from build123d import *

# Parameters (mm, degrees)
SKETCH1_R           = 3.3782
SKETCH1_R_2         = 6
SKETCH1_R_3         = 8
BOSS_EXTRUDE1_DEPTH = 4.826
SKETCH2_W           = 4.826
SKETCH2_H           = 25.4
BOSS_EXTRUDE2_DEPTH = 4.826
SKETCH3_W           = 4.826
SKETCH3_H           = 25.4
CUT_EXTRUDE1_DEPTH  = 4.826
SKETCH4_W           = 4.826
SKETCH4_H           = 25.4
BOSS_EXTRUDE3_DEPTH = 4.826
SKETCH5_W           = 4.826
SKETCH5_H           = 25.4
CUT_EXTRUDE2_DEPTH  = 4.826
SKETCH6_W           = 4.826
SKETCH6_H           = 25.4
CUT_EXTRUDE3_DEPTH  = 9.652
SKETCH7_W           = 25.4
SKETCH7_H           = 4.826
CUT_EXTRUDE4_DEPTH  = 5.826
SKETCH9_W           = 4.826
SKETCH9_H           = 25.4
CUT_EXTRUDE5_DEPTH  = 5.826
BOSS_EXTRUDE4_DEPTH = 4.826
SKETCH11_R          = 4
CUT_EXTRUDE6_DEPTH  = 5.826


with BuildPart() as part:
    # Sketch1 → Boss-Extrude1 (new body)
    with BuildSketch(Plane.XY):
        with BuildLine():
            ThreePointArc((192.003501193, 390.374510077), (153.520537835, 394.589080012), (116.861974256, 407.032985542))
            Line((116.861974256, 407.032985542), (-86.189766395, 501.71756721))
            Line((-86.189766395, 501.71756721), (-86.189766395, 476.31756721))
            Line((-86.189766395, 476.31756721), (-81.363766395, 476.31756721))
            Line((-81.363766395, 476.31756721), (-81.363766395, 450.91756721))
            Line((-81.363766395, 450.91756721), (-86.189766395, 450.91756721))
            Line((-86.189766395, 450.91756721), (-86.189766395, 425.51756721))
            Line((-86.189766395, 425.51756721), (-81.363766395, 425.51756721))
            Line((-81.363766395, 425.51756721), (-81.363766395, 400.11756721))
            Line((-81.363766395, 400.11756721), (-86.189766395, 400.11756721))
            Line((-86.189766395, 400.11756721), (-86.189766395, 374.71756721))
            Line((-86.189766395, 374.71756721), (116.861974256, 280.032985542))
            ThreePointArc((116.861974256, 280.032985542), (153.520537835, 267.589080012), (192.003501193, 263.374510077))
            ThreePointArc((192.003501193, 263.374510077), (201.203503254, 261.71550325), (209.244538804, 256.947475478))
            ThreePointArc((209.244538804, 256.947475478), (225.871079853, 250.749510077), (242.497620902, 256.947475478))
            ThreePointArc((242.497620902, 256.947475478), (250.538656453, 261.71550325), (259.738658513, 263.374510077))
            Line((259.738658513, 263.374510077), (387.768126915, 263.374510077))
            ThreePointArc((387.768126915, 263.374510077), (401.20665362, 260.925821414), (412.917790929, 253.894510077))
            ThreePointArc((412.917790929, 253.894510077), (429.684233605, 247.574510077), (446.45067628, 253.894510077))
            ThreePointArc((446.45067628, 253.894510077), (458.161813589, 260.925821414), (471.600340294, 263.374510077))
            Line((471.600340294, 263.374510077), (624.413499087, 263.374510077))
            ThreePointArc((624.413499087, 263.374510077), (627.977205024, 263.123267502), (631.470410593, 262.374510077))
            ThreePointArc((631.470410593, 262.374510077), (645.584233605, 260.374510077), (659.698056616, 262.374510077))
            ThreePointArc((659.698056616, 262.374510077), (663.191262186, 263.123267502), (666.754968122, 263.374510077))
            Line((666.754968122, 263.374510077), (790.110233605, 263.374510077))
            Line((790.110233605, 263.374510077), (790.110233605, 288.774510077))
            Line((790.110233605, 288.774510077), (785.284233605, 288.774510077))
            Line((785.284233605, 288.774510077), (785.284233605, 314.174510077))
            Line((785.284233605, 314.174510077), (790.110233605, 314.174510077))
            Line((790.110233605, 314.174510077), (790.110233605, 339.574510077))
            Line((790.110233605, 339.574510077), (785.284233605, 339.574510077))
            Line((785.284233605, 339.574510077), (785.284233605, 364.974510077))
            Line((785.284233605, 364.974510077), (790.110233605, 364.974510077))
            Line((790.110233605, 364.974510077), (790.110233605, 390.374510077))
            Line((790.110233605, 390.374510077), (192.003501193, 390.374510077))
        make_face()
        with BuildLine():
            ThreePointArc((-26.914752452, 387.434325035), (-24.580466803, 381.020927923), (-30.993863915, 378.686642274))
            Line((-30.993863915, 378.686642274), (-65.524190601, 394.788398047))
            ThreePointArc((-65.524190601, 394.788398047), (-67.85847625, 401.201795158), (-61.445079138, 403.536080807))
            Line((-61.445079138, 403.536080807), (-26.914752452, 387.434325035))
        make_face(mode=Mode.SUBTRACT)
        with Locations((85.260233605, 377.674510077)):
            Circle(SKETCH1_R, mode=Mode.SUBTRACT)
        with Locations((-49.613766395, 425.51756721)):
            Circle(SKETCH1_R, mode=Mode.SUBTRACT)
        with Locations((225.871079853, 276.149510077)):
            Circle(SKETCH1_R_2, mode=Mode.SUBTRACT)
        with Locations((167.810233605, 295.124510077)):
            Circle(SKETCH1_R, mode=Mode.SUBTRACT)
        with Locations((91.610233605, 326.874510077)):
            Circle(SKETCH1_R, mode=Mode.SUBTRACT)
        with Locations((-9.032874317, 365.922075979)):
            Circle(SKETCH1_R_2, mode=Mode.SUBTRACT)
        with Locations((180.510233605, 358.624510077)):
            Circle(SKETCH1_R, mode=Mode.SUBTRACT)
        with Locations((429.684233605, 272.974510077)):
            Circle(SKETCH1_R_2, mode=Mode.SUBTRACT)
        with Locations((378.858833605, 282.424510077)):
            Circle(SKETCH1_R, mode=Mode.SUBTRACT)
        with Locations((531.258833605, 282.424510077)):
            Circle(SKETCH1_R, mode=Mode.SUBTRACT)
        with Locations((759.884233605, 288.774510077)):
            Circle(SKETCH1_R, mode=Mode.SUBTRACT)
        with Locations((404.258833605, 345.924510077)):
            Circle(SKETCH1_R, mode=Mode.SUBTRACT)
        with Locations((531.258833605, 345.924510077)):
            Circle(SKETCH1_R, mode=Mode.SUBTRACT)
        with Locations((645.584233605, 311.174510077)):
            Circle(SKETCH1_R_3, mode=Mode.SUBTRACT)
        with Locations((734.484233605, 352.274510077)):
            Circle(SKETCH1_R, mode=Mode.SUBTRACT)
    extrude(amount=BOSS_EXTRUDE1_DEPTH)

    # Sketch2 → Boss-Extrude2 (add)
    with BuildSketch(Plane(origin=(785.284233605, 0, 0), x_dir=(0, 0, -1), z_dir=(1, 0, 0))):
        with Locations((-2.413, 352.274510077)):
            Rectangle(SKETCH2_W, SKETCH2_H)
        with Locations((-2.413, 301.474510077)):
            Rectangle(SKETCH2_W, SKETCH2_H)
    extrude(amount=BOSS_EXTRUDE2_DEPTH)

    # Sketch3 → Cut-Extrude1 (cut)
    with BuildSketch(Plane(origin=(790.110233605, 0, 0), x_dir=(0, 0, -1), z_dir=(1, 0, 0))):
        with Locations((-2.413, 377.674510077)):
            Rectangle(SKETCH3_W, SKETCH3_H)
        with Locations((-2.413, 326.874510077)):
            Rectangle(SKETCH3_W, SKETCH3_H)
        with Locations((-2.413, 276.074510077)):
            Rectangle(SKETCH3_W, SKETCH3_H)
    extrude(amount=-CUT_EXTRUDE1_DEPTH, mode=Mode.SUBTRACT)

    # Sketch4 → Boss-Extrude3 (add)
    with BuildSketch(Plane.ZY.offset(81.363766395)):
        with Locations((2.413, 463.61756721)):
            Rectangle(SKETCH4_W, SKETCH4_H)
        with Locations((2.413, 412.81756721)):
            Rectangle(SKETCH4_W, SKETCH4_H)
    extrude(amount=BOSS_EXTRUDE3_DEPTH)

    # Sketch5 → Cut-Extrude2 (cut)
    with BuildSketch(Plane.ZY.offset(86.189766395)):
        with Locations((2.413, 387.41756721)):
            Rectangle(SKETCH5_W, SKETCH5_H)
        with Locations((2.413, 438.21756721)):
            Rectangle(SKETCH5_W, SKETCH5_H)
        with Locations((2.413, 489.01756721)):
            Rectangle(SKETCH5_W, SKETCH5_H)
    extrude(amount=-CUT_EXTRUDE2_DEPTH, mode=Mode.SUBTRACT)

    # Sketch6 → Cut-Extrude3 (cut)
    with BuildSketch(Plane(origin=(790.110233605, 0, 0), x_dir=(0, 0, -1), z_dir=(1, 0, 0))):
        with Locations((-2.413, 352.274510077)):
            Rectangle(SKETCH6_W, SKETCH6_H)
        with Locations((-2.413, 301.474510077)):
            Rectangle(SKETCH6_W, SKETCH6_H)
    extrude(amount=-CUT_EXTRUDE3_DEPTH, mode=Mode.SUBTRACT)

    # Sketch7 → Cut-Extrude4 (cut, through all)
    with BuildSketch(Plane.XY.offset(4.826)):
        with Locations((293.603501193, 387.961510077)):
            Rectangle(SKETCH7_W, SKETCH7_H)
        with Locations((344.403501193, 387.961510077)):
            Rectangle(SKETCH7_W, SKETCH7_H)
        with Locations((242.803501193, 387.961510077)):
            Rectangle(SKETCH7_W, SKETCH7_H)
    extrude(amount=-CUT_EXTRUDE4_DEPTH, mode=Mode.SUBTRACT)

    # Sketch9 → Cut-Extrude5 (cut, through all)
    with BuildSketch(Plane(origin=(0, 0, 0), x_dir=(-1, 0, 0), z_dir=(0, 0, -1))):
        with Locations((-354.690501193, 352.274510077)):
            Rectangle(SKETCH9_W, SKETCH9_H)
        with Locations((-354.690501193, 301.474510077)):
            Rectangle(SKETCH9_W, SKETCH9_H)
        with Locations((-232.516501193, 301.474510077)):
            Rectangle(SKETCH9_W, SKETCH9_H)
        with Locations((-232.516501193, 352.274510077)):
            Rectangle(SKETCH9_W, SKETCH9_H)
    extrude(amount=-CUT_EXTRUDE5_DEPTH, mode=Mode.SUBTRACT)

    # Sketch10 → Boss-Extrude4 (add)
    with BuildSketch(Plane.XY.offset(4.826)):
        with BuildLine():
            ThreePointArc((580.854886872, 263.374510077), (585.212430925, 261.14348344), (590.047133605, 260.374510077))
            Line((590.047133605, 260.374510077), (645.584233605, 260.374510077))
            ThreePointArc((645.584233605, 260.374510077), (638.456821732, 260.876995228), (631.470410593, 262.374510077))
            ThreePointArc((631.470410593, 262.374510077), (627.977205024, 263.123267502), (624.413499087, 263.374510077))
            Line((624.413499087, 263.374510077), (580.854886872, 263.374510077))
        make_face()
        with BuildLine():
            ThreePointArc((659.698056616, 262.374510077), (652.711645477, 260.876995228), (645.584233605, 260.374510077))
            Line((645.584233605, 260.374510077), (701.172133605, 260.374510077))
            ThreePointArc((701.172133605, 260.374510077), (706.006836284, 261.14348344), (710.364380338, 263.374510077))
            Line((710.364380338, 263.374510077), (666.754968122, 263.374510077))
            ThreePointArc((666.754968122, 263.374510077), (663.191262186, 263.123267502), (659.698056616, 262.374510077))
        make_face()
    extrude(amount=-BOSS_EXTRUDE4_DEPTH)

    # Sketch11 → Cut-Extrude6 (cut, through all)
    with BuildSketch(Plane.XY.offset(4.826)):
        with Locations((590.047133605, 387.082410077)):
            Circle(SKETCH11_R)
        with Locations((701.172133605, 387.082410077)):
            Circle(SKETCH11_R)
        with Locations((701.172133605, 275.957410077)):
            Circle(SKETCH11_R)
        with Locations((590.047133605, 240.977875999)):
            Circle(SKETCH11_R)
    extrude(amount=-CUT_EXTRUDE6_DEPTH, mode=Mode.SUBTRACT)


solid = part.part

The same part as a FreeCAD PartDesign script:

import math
import FreeCAD as App
import Part
import Sketcher

V = App.Vector
Q = App.Units.Quantity


def add_polygon(sketch, points):
    """Adds a closed chain of lines whose ends are joined by coincident constraints."""
    first, n = sketch.GeometryCount, len(points)
    for a, b in zip(points, points[1:] + points[:1]):
        sketch.addGeometry(Part.LineSegment(App.Vector(*a, 0), App.Vector(*b, 0)), False)
    for i in range(n):
        sketch.addConstraint(Sketcher.Constraint("Coincident", first + i, 2, first + (i + 1) % n, 1))

doc = App.newDocument("Part")
body = doc.addObject("PartDesign::Body", "Body")

# Sketch on XY plane
sketch1 = body.newObject("Sketcher::SketchObject", "Sketch")
sketch1.AttachmentSupport = (doc.getObject("XY_Plane"), [""])
sketch1.MapMode = "FlatFace"
sketch1.addGeometry([
    Part.ArcOfCircle(Part.Circle(V(192, 568.2, 0), V(0, 0, 1), 177.8), math.radians(-115), math.radians(-90)),  # 0
    Part.LineSegment(V(116.9, 407, 0), V(-86.2, 501.7, 0)),  # 1
    Part.LineSegment(V(-86.2, 501.7, 0), V(-86.2, 476.3, 0)),  # 2
    Part.LineSegment(V(-86.2, 476.3, 0), V(-81.4, 476.3, 0)),  # 3
    Part.LineSegment(V(-81.4, 476.3, 0), V(-81.4, 450.9, 0)),  # 4
    Part.LineSegment(V(-81.4, 450.9, 0), V(-86.2, 450.9, 0)),  # 5
    Part.LineSegment(V(-86.2, 450.9, 0), V(-86.2, 425.5, 0)),  # 6
    Part.LineSegment(V(-86.2, 425.5, 0), V(-81.4, 425.5, 0)),  # 7
    Part.LineSegment(V(-81.4, 425.5, 0), V(-81.4, 400.1, 0)),  # 8
    Part.LineSegment(V(-81.4, 400.1, 0), V(-86.2, 400.1, 0)),  # 9
    Part.LineSegment(V(-86.2, 400.1, 0), V(-86.2, 374.7, 0)),  # 10
    Part.LineSegment(V(-86.2, 374.7, 0), V(116.9, 280, 0)),  # 11
    Part.ArcOfCircle(Part.Circle(V(192, 441.2, 0), V(0, 0, 1), 177.8), math.radians(-115), math.radians(-90)),  # 12
    Part.ArcOfCircle(Part.Circle(V(192, 237, 0), V(0, 0, 1), 26.3), math.radians(49), math.radians(90)),  # 13
    Part.ArcOfCircle(Part.Circle(V(225.9, 276.1, 0), V(0, 0, 1), 25.4), math.radians(-131), math.radians(-49)),  # 14
    Part.ArcOfCircle(Part.Circle(V(259.7, 237, 0), V(0, 0, 1), 26.3), math.radians(90), math.radians(131)),  # 15
    Part.LineSegment(V(259.7, 263.4, 0), V(387.8, 263.4, 0)),  # 16
    Part.ArcOfCircle(Part.Circle(V(387.8, 225.3, 0), V(0, 0, 1), 38.1), math.radians(49), math.radians(90)),  # 17
    Part.ArcOfCircle(Part.Circle(V(429.7, 273, 0), V(0, 0, 1), 25.4), math.radians(-131), math.radians(-49)),  # 18
    Part.ArcOfCircle(Part.Circle(V(471.6, 225.3, 0), V(0, 0, 1), 38.1), math.radians(90), math.radians(131)),  # 19
    Part.LineSegment(V(471.6, 263.4, 0), V(624.4, 263.4, 0)),  # 20
    Part.ArcOfCircle(Part.Circle(V(624.4, 238, 0), V(0, 0, 1), 25.4), math.radians(73.87), math.radians(90)),  # 21
    Part.ArcOfCircle(Part.Circle(V(645.6, 311.2, 0), V(0, 0, 1), 50.8), math.radians(-106), math.radians(-74)),  # 22
    Part.ArcOfCircle(Part.Circle(V(666.8, 238, 0), V(0, 0, 1), 25.4), math.radians(90), math.radians(106.13)),  # 23
    Part.LineSegment(V(666.8, 263.4, 0), V(790.1, 263.4, 0)),  # 24
    Part.LineSegment(V(790.1, 263.4, 0), V(790.1, 288.8, 0)),  # 25
    Part.LineSegment(V(790.1, 288.8, 0), V(785.3, 288.8, 0)),  # 26
    Part.LineSegment(V(785.3, 288.8, 0), V(785.3, 314.2, 0)),  # 27
    Part.LineSegment(V(785.3, 314.2, 0), V(790.1, 314.2, 0)),  # 28
    Part.LineSegment(V(790.1, 314.2, 0), V(790.1, 339.6, 0)),  # 29
    Part.LineSegment(V(790.1, 339.6, 0), V(785.3, 339.6, 0)),  # 30
    Part.LineSegment(V(785.3, 339.6, 0), V(785.3, 365, 0)),  # 31
    Part.LineSegment(V(785.3, 365, 0), V(790.1, 365, 0)),  # 32
    Part.LineSegment(V(790.1, 365, 0), V(790.1, 390.4, 0)),  # 33
    Part.LineSegment(V(790.1, 390.4, 0), V(192, 390.4, 0)),  # 34
    Part.Circle(V(225.9, 276.1, 0), V(0, 0, 1), 6),  # 35
    Part.Circle(V(167.8, 295.1, 0), V(0, 0, 1), 3.4),  # 36
    Part.Circle(V(91.6, 326.9, 0), V(0, 0, 1), 3.4),  # 37
    Part.Circle(V(429.7, 273, 0), V(0, 0, 1), 6),  # 38
    Part.Circle(V(378.9, 282.4, 0), V(0, 0, 1), 3.4),  # 39
    Part.Circle(V(531.3, 282.4, 0), V(0, 0, 1), 3.4),  # 40
    Part.Circle(V(759.9, 288.8, 0), V(0, 0, 1), 3.4),  # 41
    Part.Circle(V(404.3, 345.9, 0), V(0, 0, 1), 3.4),  # 42
    Part.Circle(V(531.3, 345.9, 0), V(0, 0, 1), 3.4),  # 43
    Part.Circle(V(645.6, 311.2, 0), V(0, 0, 1), 8),  # 44
    Part.Circle(V(-9, 365.9, 0), V(0, 0, 1), 6),  # 45
    Part.Circle(V(85.3, 377.7, 0), V(0, 0, 1), 3.4),  # 46
    Part.Circle(V(180.5, 358.6, 0), V(0, 0, 1), 3.4),  # 47
    Part.LineSegment(V(-61.4, 403.5, 0), V(-26.9, 387.4, 0)),  # 48
    Part.ArcOfCircle(Part.Circle(V(-29, 383.1, 0), V(0, 0, 1), 4.8), math.radians(-115), math.radians(65)),  # 49
    Part.LineSegment(V(-31, 378.7, 0), V(-65.5, 394.8, 0)),  # 50
    Part.ArcOfCircle(Part.Circle(V(-63.5, 399.2, 0), V(0, 0, 1), 4.8), math.radians(65), math.radians(245)),  # 51
    Part.Circle(V(-49.6, 425.5, 0), V(0, 0, 1), 3.4),  # 52
    Part.Circle(V(734.5, 352.3, 0), V(0, 0, 1), 3.4),  # 53
], False)
sketch1.addConstraint([
    Sketcher.Constraint("Tangent", 0, 1, 1, 1),
    Sketcher.Constraint("Coincident", 1, 2, 2, 1),
    Sketcher.Constraint("Coincident", 2, 2, 3, 1),
    Sketcher.Constraint("Coincident", 3, 2, 4, 1),
    Sketcher.Constraint("Coincident", 4, 2, 5, 1),
    Sketcher.Constraint("Coincident", 5, 2, 6, 1),
    Sketcher.Constraint("Coincident", 6, 2, 7, 1),
    Sketcher.Constraint("Coincident", 7, 2, 8, 1),
    Sketcher.Constraint("Coincident", 8, 2, 9, 1),
    Sketcher.Constraint("Coincident", 9, 2, 10, 1),
    Sketcher.Constraint("Coincident", 10, 2, 11, 1),
    Sketcher.Constraint("Tangent", 11, 2, 12, 1),
    Sketcher.Constraint("Tangent", 12, 2, 13, 2),
    Sketcher.Constraint("Tangent", 13, 1, 14, 1),
    Sketcher.Constraint("Tangent", 14, 2, 15, 2),
    Sketcher.Constraint("Tangent", 15, 1, 16, 1),
    Sketcher.Constraint("Tangent", 16, 2, 17, 2),
    Sketcher.Constraint("Tangent", 17, 1, 18, 1),
    Sketcher.Constraint("Tangent", 18, 2, 19, 2),
    Sketcher.Constraint("Tangent", 19, 1, 20, 1),
    Sketcher.Constraint("Tangent", 20, 2, 21, 2),
    Sketcher.Constraint("Tangent", 21, 1, 22, 1),
    Sketcher.Constraint("Tangent", 22, 2, 23, 2),
    Sketcher.Constraint("Tangent", 23, 1, 24, 1),
    Sketcher.Constraint("Coincident", 24, 2, 25, 1),
    Sketcher.Constraint("Coincident", 25, 2, 26, 1),
    Sketcher.Constraint("Coincident", 26, 2, 27, 1),
    Sketcher.Constraint("Coincident", 27, 2, 28, 1),
    Sketcher.Constraint("Coincident", 28, 2, 29, 1),
    Sketcher.Constraint("Coincident", 29, 2, 30, 1),
    Sketcher.Constraint("Coincident", 30, 2, 31, 1),
    Sketcher.Constraint("Coincident", 31, 2, 32, 1),
    Sketcher.Constraint("Coincident", 32, 2, 33, 1),
    Sketcher.Constraint("Coincident", 33, 2, 34, 1),
    Sketcher.Constraint("Tangent", 34, 2, 0, 2),
    Sketcher.Constraint("Tangent", 48, 2, 49, 2),
    Sketcher.Constraint("Tangent", 49, 1, 50, 1),
    Sketcher.Constraint("Tangent", 50, 2, 51, 2),
    Sketcher.Constraint("Tangent", 51, 1, 48, 1),
    Sketcher.Constraint("Vertical", 2),
    Sketcher.Constraint("Horizontal", 3),
    Sketcher.Constraint("Vertical", 4),
    Sketcher.Constraint("Horizontal", 5),
    Sketcher.Constraint("Vertical", 6),
    Sketcher.Constraint("Horizontal", 7),
    Sketcher.Constraint("Vertical", 8),
    Sketcher.Constraint("Horizontal", 9),
    Sketcher.Constraint("Vertical", 10),
    Sketcher.Constraint("Horizontal", 16),
    Sketcher.Constraint("Horizontal", 20),
    Sketcher.Constraint("Horizontal", 24),
    Sketcher.Constraint("Vertical", 25),
    Sketcher.Constraint("Horizontal", 26),
    Sketcher.Constraint("Vertical", 27),
    Sketcher.Constraint("Horizontal", 28),
    Sketcher.Constraint("Vertical", 29),
    Sketcher.Constraint("Horizontal", 30),
    Sketcher.Constraint("Vertical", 31),
    Sketcher.Constraint("Horizontal", 32),
    Sketcher.Constraint("Vertical", 33),
    Sketcher.Constraint("Horizontal", 34),
    Sketcher.Constraint("Coincident", 35, 3, 14, 3),
    Sketcher.Constraint("Coincident", 38, 3, 18, 3),
    Sketcher.Constraint("Coincident", 44, 3, 22, 3),
    Sketcher.Constraint("Equal", 0, 12),
    Sketcher.Constraint("Equal", 13, 15),
    Sketcher.Constraint("Equal", 14, 18),
    Sketcher.Constraint("Equal", 17, 19),
    Sketcher.Constraint("Equal", 18, 21),
    Sketcher.Constraint("Equal", 21, 23),
    Sketcher.Constraint("Equal", 36, 37),
    Sketcher.Constraint("Equal", 35, 38),
    Sketcher.Constraint("Equal", 37, 39),
    Sketcher.Constraint("Equal", 39, 40),
    Sketcher.Constraint("Equal", 40, 41),
    Sketcher.Constraint("Equal", 41, 42),
    Sketcher.Constraint("Equal", 42, 43),
    Sketcher.Constraint("Equal", 38, 45),
    Sketcher.Constraint("Equal", 43, 46),
    Sketcher.Constraint("Equal", 46, 47),
    Sketcher.Constraint("Equal", 49, 51),
    Sketcher.Constraint("Equal", 47, 52),
    Sketcher.Constraint("Equal", 52, 53),
    Sketcher.Constraint("Parallel", 1, 11),
    Sketcher.Constraint("Parallel", 11, 48),
    Sketcher.Constraint("Horizontal", 13, 3, 15, 3),
    Sketcher.Constraint("Horizontal", 17, 3, 19, 3),
    Sketcher.Constraint("Horizontal", 21, 3, 23, 3),
    Sketcher.Constraint("Horizontal", 39, 3, 40, 3),
    Sketcher.Constraint("Horizontal", 42, 3, 43, 3),
    Sketcher.Constraint("Horizontal", 52, 3, 6, 2),
    Sketcher.Constraint("Horizontal", 41, 3, 25, 2),
    Sketcher.Constraint("Vertical", 0, 3, 12, 3),
    Sketcher.Constraint("Vertical", 12, 3, 13, 3),
    Sketcher.Constraint("Vertical", 40, 3, 43, 3),
    Sketcher.Constraint("Vertical", 2, 2, 5, 2),
    Sketcher.Constraint("Vertical", 4, 2, 7, 2),
    Sketcher.Constraint("Vertical", 6, 2, 9, 2),
    Sketcher.Constraint("Vertical", 25, 2, 28, 2),
    Sketcher.Constraint("Vertical", 27, 2, 30, 2),
    Sketcher.Constraint("Vertical", 29, 2, 32, 2),
    Sketcher.Constraint("Equal", 9, 26),
    Sketcher.Constraint("Equal", 2, 4),
    Sketcher.Constraint("Equal", 4, 6),
    Sketcher.Constraint("Equal", 6, 8),
    Sketcher.Constraint("Equal", 8, 10),
    Sketcher.Constraint("Equal", 10, 25),
    Sketcher.Constraint("Equal", 25, 27),
    Sketcher.Constraint("Equal", 27, 29),
    Sketcher.Constraint("Equal", 29, 31),
    Sketcher.Constraint("Radius", 0, Q("7 in")),
    Sketcher.Constraint("Radius", 14, Q("1 in")),
    Sketcher.Constraint("Radius", 22, Q("2 in")),
    Sketcher.Constraint("Radius", 17, Q("1.5 in")),
    Sketcher.Constraint("DistanceY", 2, 2, 2, 1, Q("1 in")),
    Sketcher.Constraint("Radius", 49, Q("0.19 in")),
    Sketcher.Constraint("Diameter", 36, Q("0.266 in")),
    Sketcher.Constraint("Angle", 1, Q("155 deg")),
    Sketcher.Constraint("Distance", 48, Q("1.5 in")),
    Sketcher.Constraint("DistanceX", 3, 1, 3, 2, Q("0.19 in")),
    Sketcher.Constraint("Diameter", 35, 12.0),
    Sketcher.Constraint("Diameter", 44, 16.0),
    Sketcher.Constraint("Radius", 13, 26.338753),
    Sketcher.Constraint("DistanceX", 16, 1, 16, 2, 128.029468),
    Sketcher.Constraint("DistanceX", 20, 1, 20, 2, 152.813159),
    Sketcher.Constraint("DistanceX", -1, 1, 0, 3, 192.003501),
    Sketcher.Constraint("DistanceX", -1, 1, 21, 3, 624.413499),
    Sketcher.Constraint("DistanceY", -1, 1, 50, 2, 394.788398),
    Sketcher.Constraint("DistanceX", 24, 1, 24, 2, 123.355265),
    Sketcher.Constraint("DistanceX", 34, 2, 34, 1, 598.106732),
    Sketcher.Constraint("DistanceY", -1, 1, 0, 3, 568.17451),
    Sketcher.Constraint("DistanceX", -1, 1, 14, 3, 225.87108),
    Sketcher.Constraint("DistanceY", -1, 1, 36, 3, 295.12451),
    Sketcher.Constraint("DistanceY", -1, 1, 37, 3, 326.87451),
    Sketcher.Constraint("DistanceY", -1, 1, 39, 3, 282.42451),
    Sketcher.Constraint("DistanceY", -1, 1, 42, 3, 345.92451),
    Sketcher.Constraint("DistanceY", -1, 1, 46, 3, 377.67451),
    Sketcher.Constraint("DistanceY", -1, 1, 47, 3, 358.62451),
    Sketcher.Constraint("DistanceX", 49, 3, -1, 1, 28.954308),
    Sketcher.Constraint("DistanceY", -1, 1, 53, 3, 352.27451),
    Sketcher.Constraint("Distance", 1, 224.042807),
    Sketcher.Constraint("DistanceX", -1, 1, 36, 3, 167.810234),
    Sketcher.Constraint("DistanceX", -1, 1, 37, 3, 91.610234),
    Sketcher.Constraint("DistanceX", -1, 1, 39, 3, 378.858834),
    Sketcher.Constraint("DistanceX", -1, 1, 40, 3, 531.258834),
    Sketcher.Constraint("DistanceX", -1, 1, 41, 3, 759.884234),
    Sketcher.Constraint("DistanceX", -1, 1, 42, 3, 404.258834),
    Sketcher.Constraint("DistanceX", 45, 3, -1, 1, 9.032874),
    Sketcher.Constraint("DistanceY", -1, 1, 45, 3, 365.922076),
    Sketcher.Constraint("DistanceX", -1, 1, 46, 3, 85.260234),
    Sketcher.Constraint("DistanceX", -1, 1, 47, 3, 180.510234),
    Sketcher.Constraint("DistanceX", 52, 3, -1, 1, 49.613766),
    Sketcher.Constraint("DistanceX", -1, 1, 53, 3, 734.484234),
])
pad1 = body.newObject("PartDesign::Pad", "Pad")
pad1.Profile = sketch1
pad1.Length = Q("0.19 in")

# Sketch on YZ plane
sketch2 = body.newObject("Sketcher::SketchObject", "Sketch001")
sketch2.AttachmentSupport = (doc.getObject("YZ_Plane"), [""])
sketch2.MapMode = "FlatFace"
sketch2.AttachmentOffset = App.Placement(V(0, 0, 785.284234), App.Rotation())
add_polygon(sketch2, [(365, 4.8), (339.6, 4.8), (339.6, 0), (365, 0)])  # lines 0-3
add_polygon(sketch2, [(314.2, 4.8), (288.8, 4.8), (288.8, 0), (314.2, 0)])  # lines 4-7
sketch2.addConstraint([
    Sketcher.Constraint("Horizontal", 0),
    Sketcher.Constraint("Vertical", 1),
    Sketcher.Constraint("Horizontal", 2),
    Sketcher.Constraint("Vertical", 3),
    Sketcher.Constraint("Horizontal", 4),
    Sketcher.Constraint("Vertical", 5),
    Sketcher.Constraint("Horizontal", 6),
    Sketcher.Constraint("Vertical", 7),
    Sketcher.Constraint("PointOnObject", 1, 2, -1),
    Sketcher.Constraint("PointOnObject", 5, 2, -1),
    Sketcher.Constraint("Horizontal", 3, 2, 4, 2),
    Sketcher.Constraint("Equal", 2, 4),
    Sketcher.Constraint("DistanceX", 0, 2, 0, 1, Q("1 in")),
    Sketcher.Constraint("DistanceX", 4, 2, 0, 2, Q("2 in")),
    Sketcher.Constraint("DistanceY", 1, 2, 1, 1, Q("0.19 in")),
    Sketcher.Constraint("DistanceX", -1, 1, 0, 2, 339.57451),
])
pad2 = body.newObject("PartDesign::Pad", "Pad001")
pad2.Profile = sketch2
pad2.Length = Q("0.19 in")

# Sketch on YZ plane
sketch3 = body.newObject("Sketcher::SketchObject", "Sketch002")
sketch3.AttachmentSupport = (doc.getObject("YZ_Plane"), [""])
sketch3.MapMode = "FlatFace"
sketch3.AttachmentOffset = App.Placement(V(0, 0, 790.110234), App.Rotation())
add_polygon(sketch3, [(390.4, 4.8), (365, 4.8), (365, 0), (390.4, 0)])  # lines 0-3
add_polygon(sketch3, [(339.6, 4.8), (314.2, 4.8), (314.2, 0), (339.6, 0)])  # lines 4-7
add_polygon(sketch3, [(288.8, 4.8), (263.4, 4.8), (263.4, 0), (288.8, 0)])  # lines 8-11
sketch3.addConstraint([
    Sketcher.Constraint("Horizontal", 0),
    Sketcher.Constraint("Vertical", 1),
    Sketcher.Constraint("Horizontal", 2),
    Sketcher.Constraint("Vertical", 3),
    Sketcher.Constraint("Horizontal", 4),
    Sketcher.Constraint("Vertical", 5),
    Sketcher.Constraint("Horizontal", 6),
    Sketcher.Constraint("Vertical", 7),
    Sketcher.Constraint("Horizontal", 8),
    Sketcher.Constraint("Vertical", 9),
    Sketcher.Constraint("Horizontal", 10),
    Sketcher.Constraint("Vertical", 11),
    Sketcher.Constraint("PointOnObject", 1, 2, -1),
    Sketcher.Constraint("PointOnObject", 5, 2, -1),
    Sketcher.Constraint("PointOnObject", 9, 2, -1),
    Sketcher.Constraint("Horizontal", 3, 2, 4, 2),
    Sketcher.Constraint("Horizontal", 7, 2, 8, 2),
    Sketcher.Constraint("Equal", 2, 4),
    Sketcher.Constraint("Equal", 6, 8),
    Sketcher.Constraint("DistanceX", 0, 2, 0, 1, Q("1 in")),
    Sketcher.Constraint("DistanceX", 4, 2, 0, 2, Q("2 in")),
    Sketcher.Constraint("DistanceX", 8, 2, 4, 2, Q("2 in")),
    Sketcher.Constraint("DistanceY", 1, 2, 1, 1, Q("0.19 in")),
    Sketcher.Constraint("DistanceX", -1, 1, 0, 2, 364.97451),
])
pocket1 = body.newObject("PartDesign::Pocket", "Pocket")
pocket1.Profile = sketch3
pocket1.Length = Q("0.19 in")

# Sketch on YZ plane
sketch4 = body.newObject("Sketcher::SketchObject", "Sketch003")
sketch4.AttachmentSupport = (doc.getObject("YZ_Plane"), [""])
sketch4.MapMode = "FlatFace"
sketch4.AttachmentOffset = App.Placement(V(0, 0, -81.363766), App.Rotation())
add_polygon(sketch4, [(476.3, 0), (450.9, 0), (450.9, 4.8), (476.3, 4.8)])  # lines 0-3
add_polygon(sketch4, [(425.5, 0), (400.1, 0), (400.1, 4.8), (425.5, 4.8)])  # lines 4-7
sketch4.addConstraint([
    Sketcher.Constraint("Horizontal", 0),
    Sketcher.Constraint("Vertical", 1),
    Sketcher.Constraint("Horizontal", 2),
    Sketcher.Constraint("Vertical", 3),
    Sketcher.Constraint("Horizontal", 4),
    Sketcher.Constraint("Vertical", 5),
    Sketcher.Constraint("Horizontal", 6),
    Sketcher.Constraint("Vertical", 7),
    Sketcher.Constraint("PointOnObject", 0, 2, -1),
    Sketcher.Constraint("PointOnObject", 4, 2, -1),
    Sketcher.Constraint("Horizontal", 2, 2, 5, 2),
    Sketcher.Constraint("Equal", 2, 4),
    Sketcher.Constraint("DistanceX", 0, 2, 0, 1, Q("1 in")),
    Sketcher.Constraint("DistanceX", 4, 2, 0, 2, Q("2 in")),
    Sketcher.Constraint("DistanceY", 1, 1, 1, 2, Q("0.19 in")),
    Sketcher.Constraint("DistanceX", -1, 1, 0, 2, 450.917567),
])
pad3 = body.newObject("PartDesign::Pad", "Pad002")
pad3.Profile = sketch4
pad3.Length = Q("0.19 in")
pad3.Reversed = True

# Sketch on YZ plane
sketch5 = body.newObject("Sketcher::SketchObject", "Sketch004")
sketch5.AttachmentSupport = (doc.getObject("YZ_Plane"), [""])
sketch5.MapMode = "FlatFace"
sketch5.AttachmentOffset = App.Placement(V(0, 0, -86.189766), App.Rotation())
add_polygon(sketch5, [(400.1, 0), (374.7, 0), (374.7, 4.8), (400.1, 4.8)])  # lines 0-3
add_polygon(sketch5, [(450.9, 0), (425.5, 0), (425.5, 4.8), (450.9, 4.8)])  # lines 4-7
add_polygon(sketch5, [(501.7, 0), (476.3, 0), (476.3, 4.8), (501.7, 4.8)])  # lines 8-11
sketch5.addConstraint([
    Sketcher.Constraint("Horizontal", 0),
    Sketcher.Constraint("Vertical", 1),
    Sketcher.Constraint("Horizontal", 2),
    Sketcher.Constraint("Vertical", 3),
    Sketcher.Constraint("Horizontal", 4),
    Sketcher.Constraint("Vertical", 5),
    Sketcher.Constraint("Horizontal", 6),
    Sketcher.Constraint("Vertical", 7),
    Sketcher.Constraint("Horizontal", 8),
    Sketcher.Constraint("Vertical", 9),
    Sketcher.Constraint("Horizontal", 10),
    Sketcher.Constraint("Vertical", 11),
    Sketcher.Constraint("PointOnObject", 0, 2, -1),
    Sketcher.Constraint("PointOnObject", 4, 2, -1),
    Sketcher.Constraint("PointOnObject", 8, 2, -1),
    Sketcher.Constraint("Horizontal", 2, 2, 5, 2),
    Sketcher.Constraint("Horizontal", 6, 2, 9, 2),
    Sketcher.Constraint("Equal", 2, 4),
    Sketcher.Constraint("Equal", 6, 8),
    Sketcher.Constraint("DistanceX", 0, 2, 0, 1, Q("1 in")),
    Sketcher.Constraint("DistanceX", 3, 2, 4, 2, Q("1 in")),
    Sketcher.Constraint("DistanceX", 7, 2, 8, 2, Q("1 in")),
    Sketcher.Constraint("DistanceY", 1, 1, 1, 2, Q("0.19 in")),
    Sketcher.Constraint("DistanceX", -1, 1, 0, 2, 374.717567),
])
pocket2 = body.newObject("PartDesign::Pocket", "Pocket001")
pocket2.Profile = sketch5
pocket2.Length = Q("0.19 in")
pocket2.Reversed = True

# Sketch on YZ plane
sketch6 = body.newObject("Sketcher::SketchObject", "Sketch005")
sketch6.AttachmentSupport = (doc.getObject("YZ_Plane"), [""])
sketch6.MapMode = "FlatFace"
sketch6.AttachmentOffset = App.Placement(V(0, 0, 790.110234), App.Rotation())
add_polygon(sketch6, [(365, 4.8), (339.6, 4.8), (339.6, 0), (365, 0)])  # lines 0-3
add_polygon(sketch6, [(314.2, 4.8), (288.8, 4.8), (288.8, 0), (314.2, 0)])  # lines 4-7
sketch6.addConstraint([
    Sketcher.Constraint("Horizontal", 0),
    Sketcher.Constraint("Vertical", 1),
    Sketcher.Constraint("Horizontal", 2),
    Sketcher.Constraint("Vertical", 3),
    Sketcher.Constraint("Horizontal", 4),
    Sketcher.Constraint("Vertical", 5),
    Sketcher.Constraint("Horizontal", 6),
    Sketcher.Constraint("Vertical", 7),
    Sketcher.Constraint("PointOnObject", 1, 2, -1),
    Sketcher.Constraint("PointOnObject", 5, 2, -1),
    Sketcher.Constraint("Horizontal", 3, 2, 4, 2),
    Sketcher.Constraint("Equal", 2, 4),
    Sketcher.Constraint("DistanceX", 0, 2, 0, 1, Q("1 in")),
    Sketcher.Constraint("DistanceX", 4, 2, 0, 2, Q("2 in")),
    Sketcher.Constraint("DistanceY", 1, 2, 1, 1, Q("0.19 in")),
    Sketcher.Constraint("DistanceX", -1, 1, 0, 2, 339.57451),
])
pocket3 = body.newObject("PartDesign::Pocket", "Pocket002")
pocket3.Profile = sketch6
pocket3.Length = Q("0.38 in")

# Sketch on XY plane
sketch7 = body.newObject("Sketcher::SketchObject", "Sketch006")
sketch7.AttachmentSupport = (doc.getObject("XY_Plane"), [""])
sketch7.MapMode = "FlatFace"
sketch7.AttachmentOffset = App.Placement(V(0, 0, 0.19 * 25.4), App.Rotation())
add_polygon(sketch7, [(280.9, 390.4), (280.9, 385.5), (306.3, 385.5), (306.3, 390.4)])  # lines 0-3
add_polygon(sketch7, [(331.7, 390.4), (331.7, 385.5), (357.1, 385.5), (357.1, 390.4)])  # lines 4-7
add_polygon(sketch7, [(230.1, 390.4), (230.1, 385.5), (255.5, 385.5), (255.5, 390.4)])  # lines 8-11
sketch7.addConstraint([
    Sketcher.Constraint("Vertical", 0),
    Sketcher.Constraint("Horizontal", 1),
    Sketcher.Constraint("Vertical", 2),
    Sketcher.Constraint("Horizontal", 3),
    Sketcher.Constraint("Vertical", 4),
    Sketcher.Constraint("Horizontal", 5),
    Sketcher.Constraint("Vertical", 6),
    Sketcher.Constraint("Horizontal", 7),
    Sketcher.Constraint("Vertical", 8),
    Sketcher.Constraint("Horizontal", 9),
    Sketcher.Constraint("Vertical", 10),
    Sketcher.Constraint("Horizontal", 11),
    Sketcher.Constraint("Horizontal", 1, 2, 4, 2),
    Sketcher.Constraint("Horizontal", 3, 2, 6, 2),
    Sketcher.Constraint("Horizontal", 5, 2, 8, 2),
    Sketcher.Constraint("Horizontal", 7, 2, 10, 2),
    Sketcher.Constraint("Equal", 3, 5),
    Sketcher.Constraint("Equal", 7, 9),
    Sketcher.Constraint("DistanceX", 1, 1, 1, 2, Q("1 in")),
    Sketcher.Constraint("DistanceX", 1, 2, 4, 2, Q("1 in")),
    Sketcher.Constraint("DistanceX", 8, 2, 0, 2, Q("2 in")),
    Sketcher.Constraint("DistanceY", 0, 2, 0, 1, Q("0.19 in")),
    Sketcher.Constraint("DistanceX", -1, 1, 0, 2, 280.903501),
    Sketcher.Constraint("DistanceY", -1, 1, 0, 2, 385.54851),
])
pocket4 = body.newObject("PartDesign::Pocket", "Pocket003")
pocket4.Profile = sketch7
pocket4.Type = "ThroughAll"

# Sketch on XY plane
sketch8 = body.newObject("Sketcher::SketchObject", "Sketch007")
sketch8.AttachmentSupport = (doc.getObject("XY_Plane"), [""])
sketch8.MapMode = "FlatFace"
add_polygon(sketch8, [(357.1, 365), (357.1, 339.6), (352.3, 339.6), (352.3, 365)])  # lines 0-3
add_polygon(sketch8, [(357.1, 314.2), (357.1, 288.8), (352.3, 288.8), (352.3, 314.2)])  # lines 4-7
add_polygon(sketch8, [(234.9, 314.2), (234.9, 288.8), (230.1, 288.8), (230.1, 314.2)])  # lines 8-11
add_polygon(sketch8, [(234.9, 365), (234.9, 339.6), (230.1, 339.6), (230.1, 365)])  # lines 12-15
sketch8.addConstraint([
    Sketcher.Constraint("Vertical", 0),
    Sketcher.Constraint("Horizontal", 1),
    Sketcher.Constraint("Vertical", 2),
    Sketcher.Constraint("Horizontal", 3),
    Sketcher.Constraint("Vertical", 4),
    Sketcher.Constraint("Horizontal", 5),
    Sketcher.Constraint("Vertical", 6),
    Sketcher.Constraint("Horizontal", 7),
    Sketcher.Constraint("Vertical", 8),
    Sketcher.Constraint("Horizontal", 9),
    Sketcher.Constraint("Vertical", 10),
    Sketcher.Constraint("Horizontal", 11),
    Sketcher.Constraint("Vertical", 12),
    Sketcher.Constraint("Horizontal", 13),
    Sketcher.Constraint("Vertical", 14),
    Sketcher.Constraint("Horizontal", 15),
    Sketcher.Constraint("Horizontal", 5, 2, 8, 2),
    Sketcher.Constraint("Horizontal", 7, 2, 10, 2),
    Sketcher.Constraint("Horizontal", 1, 2, 12, 2),
    Sketcher.Constraint("Horizontal", 3, 2, 14, 2),
    Sketcher.Constraint("Vertical", 3, 2, 4, 2),
    Sketcher.Constraint("Vertical", 2, 2, 5, 2),
    Sketcher.Constraint("Vertical", 11, 2, 12, 2),
    Sketcher.Constraint("Vertical", 10, 2, 13, 2),
    Sketcher.Constraint("Equal", 7, 9),
    Sketcher.Constraint("Equal", 2, 4),
    Sketcher.Constraint("DistanceY", 0, 2, 0, 1, Q("1 in")),
    Sketcher.Constraint("DistanceY", 4, 2, 0, 2, Q("2 in")),
    Sketcher.Constraint("DistanceX", 9, 2, 4, 2, Q("5 in")),
    Sketcher.Constraint("DistanceX", 1, 2, 1, 1, Q("0.19 in")),
    Sketcher.Constraint("DistanceX", -1, 1, 0, 2, 357.103501),
    Sketcher.Constraint("DistanceY", -1, 1, 0, 2, 339.57451),
])
pocket5 = body.newObject("PartDesign::Pocket", "Pocket004")
pocket5.Profile = sketch8
pocket5.Type = "ThroughAll"
pocket5.Reversed = True

# Sketch on XY plane
sketch9 = body.newObject("Sketcher::SketchObject", "Sketch008")
sketch9.AttachmentSupport = (doc.getObject("XY_Plane"), [""])
sketch9.MapMode = "FlatFace"
sketch9.AttachmentOffset = App.Placement(V(0, 0, 0.19 * 25.4), App.Rotation())
sketch9.addGeometry([
    Part.ArcOfCircle(Part.Circle(V(590, 276, 0), V(0, 0, 1), 16), math.radians(-126), math.radians(-90)),  # 0
    Part.LineSegment(V(590, 260, 0), V(646, 260, 0)),  # 1
    Part.ArcOfCircle(Part.Circle(V(646, 311, 0), V(0, 0, 1), 51), math.radians(-106.13), math.radians(-90)),  # 2
    Part.ArcOfCircle(Part.Circle(V(624, 238, 0), V(0, 0, 1), 25), math.radians(73.87), math.radians(90)),  # 3
    Part.LineSegment(V(624, 263, 0), V(581, 263, 0)),  # 4
    Part.ArcOfCircle(Part.Circle(V(646, 311, 0), V(0, 0, 1), 51), math.radians(-90), math.radians(-73.87)),  # 5
    Part.LineSegment(V(646, 260, 0), V(701, 260, 0)),  # 6
    Part.ArcOfCircle(Part.Circle(V(701, 276, 0), V(0, 0, 1), 16), math.radians(-90), math.radians(-54)),  # 7
    Part.LineSegment(V(710, 263, 0), V(667, 263, 0)),  # 8
    Part.ArcOfCircle(Part.Circle(V(667, 238, 0), V(0, 0, 1), 25), math.radians(90), math.radians(106.13)),  # 9
], False)
sketch9.addConstraint([
    Sketcher.Constraint("Tangent", 0, 2, 1, 1),
    Sketcher.Constraint("Tangent", 1, 2, 2, 2),
    Sketcher.Constraint("Tangent", 2, 1, 3, 1),
    Sketcher.Constraint("Tangent", 3, 2, 4, 1),
    Sketcher.Constraint("Coincident", 4, 2, 0, 1),
    Sketcher.Constraint("Tangent", 5, 1, 6, 1),
    Sketcher.Constraint("Tangent", 6, 2, 7, 1),
    Sketcher.Constraint("Coincident", 7, 2, 8, 1),
    Sketcher.Constraint("Tangent", 8, 2, 9, 1),
    Sketcher.Constraint("Tangent", 9, 2, 5, 2),
    Sketcher.Constraint("Horizontal", 1),
    Sketcher.Constraint("Horizontal", 4),
    Sketcher.Constraint("Horizontal", 6),
    Sketcher.Constraint("Horizontal", 8),
    Sketcher.Constraint("Coincident", 5, 3, 2, 3),
    Sketcher.Constraint("Equal", 2, 5),
    Sketcher.Constraint("Equal", 0, 7),
    Sketcher.Constraint("Equal", 3, 9),
    Sketcher.Constraint("Horizontal", 3, 3, 9, 3),
    Sketcher.Constraint("Radius", 2, Q("2 in")),
    Sketcher.Constraint("Radius", 3, Q("1 in")),
    Sketcher.Constraint("Radius", 0, Q("0.6135 in")),
    Sketcher.Constraint("DistanceX", 1, 1, 1, 2, Q("2.1865 in")),
    Sketcher.Constraint("DistanceX", 6, 1, 6, 2, Q("2.1885 in")),
    Sketcher.Constraint("DistanceX", -1, 1, 3, 3, 624.413499),
    Sketcher.Constraint("DistanceY", 3, 3, 0, 3, 37.9829),
    Sketcher.Constraint("DistanceY", -1, 1, 0, 3, 275.95741),
])
pad4 = body.newObject("PartDesign::Pad", "Pad003")
pad4.Profile = sketch9
pad4.Length = Q("0.19 in")
pad4.Reversed = True

# Sketch on XY plane
sketch10 = body.newObject("Sketcher::SketchObject", "Sketch009")
sketch10.AttachmentSupport = (doc.getObject("XY_Plane"), [""])
sketch10.MapMode = "FlatFace"
sketch10.AttachmentOffset = App.Placement(V(0, 0, 0.19 * 25.4), App.Rotation())
sketch10.addGeometry([
    Part.Circle(V(590, 387.1, 0), V(0, 0, 1), 4),
    Part.Circle(V(701.2, 387.1, 0), V(0, 0, 1), 4),
    Part.Circle(V(701.2, 276, 0), V(0, 0, 1), 4),
    Part.Circle(V(590, 241, 0), V(0, 0, 1), 4),
], False)
sketch10.addConstraint([
    Sketcher.Constraint("Equal", 0, 1),
    Sketcher.Constraint("Equal", 1, 2),
    Sketcher.Constraint("Equal", 2, 3),
    Sketcher.Constraint("Horizontal", 0, 3, 1, 3),
    Sketcher.Constraint("Vertical", 1, 3, 2, 3),
    Sketcher.Constraint("Vertical", 0, 3, 3, 3),
    Sketcher.Constraint("Diameter", 0, 8.0),
    Sketcher.Constraint("DistanceX", 0, 3, 1, 3, Q("4.375 in")),
    Sketcher.Constraint("DistanceY", 2, 3, 1, 3, Q("4.375 in")),
    Sketcher.Constraint("DistanceY", -1, 1, 0, 3, 387.08241),
    Sketcher.Constraint("DistanceX", -1, 1, 0, 3, 590.047134),
    Sketcher.Constraint("DistanceY", -1, 1, 3, 3, 240.977876),
])
pocket6 = body.newObject("PartDesign::Pocket", "Pocket005")
pocket6.Profile = sketch10
pocket6.Type = "ThroughAll"

doc.recompute()
